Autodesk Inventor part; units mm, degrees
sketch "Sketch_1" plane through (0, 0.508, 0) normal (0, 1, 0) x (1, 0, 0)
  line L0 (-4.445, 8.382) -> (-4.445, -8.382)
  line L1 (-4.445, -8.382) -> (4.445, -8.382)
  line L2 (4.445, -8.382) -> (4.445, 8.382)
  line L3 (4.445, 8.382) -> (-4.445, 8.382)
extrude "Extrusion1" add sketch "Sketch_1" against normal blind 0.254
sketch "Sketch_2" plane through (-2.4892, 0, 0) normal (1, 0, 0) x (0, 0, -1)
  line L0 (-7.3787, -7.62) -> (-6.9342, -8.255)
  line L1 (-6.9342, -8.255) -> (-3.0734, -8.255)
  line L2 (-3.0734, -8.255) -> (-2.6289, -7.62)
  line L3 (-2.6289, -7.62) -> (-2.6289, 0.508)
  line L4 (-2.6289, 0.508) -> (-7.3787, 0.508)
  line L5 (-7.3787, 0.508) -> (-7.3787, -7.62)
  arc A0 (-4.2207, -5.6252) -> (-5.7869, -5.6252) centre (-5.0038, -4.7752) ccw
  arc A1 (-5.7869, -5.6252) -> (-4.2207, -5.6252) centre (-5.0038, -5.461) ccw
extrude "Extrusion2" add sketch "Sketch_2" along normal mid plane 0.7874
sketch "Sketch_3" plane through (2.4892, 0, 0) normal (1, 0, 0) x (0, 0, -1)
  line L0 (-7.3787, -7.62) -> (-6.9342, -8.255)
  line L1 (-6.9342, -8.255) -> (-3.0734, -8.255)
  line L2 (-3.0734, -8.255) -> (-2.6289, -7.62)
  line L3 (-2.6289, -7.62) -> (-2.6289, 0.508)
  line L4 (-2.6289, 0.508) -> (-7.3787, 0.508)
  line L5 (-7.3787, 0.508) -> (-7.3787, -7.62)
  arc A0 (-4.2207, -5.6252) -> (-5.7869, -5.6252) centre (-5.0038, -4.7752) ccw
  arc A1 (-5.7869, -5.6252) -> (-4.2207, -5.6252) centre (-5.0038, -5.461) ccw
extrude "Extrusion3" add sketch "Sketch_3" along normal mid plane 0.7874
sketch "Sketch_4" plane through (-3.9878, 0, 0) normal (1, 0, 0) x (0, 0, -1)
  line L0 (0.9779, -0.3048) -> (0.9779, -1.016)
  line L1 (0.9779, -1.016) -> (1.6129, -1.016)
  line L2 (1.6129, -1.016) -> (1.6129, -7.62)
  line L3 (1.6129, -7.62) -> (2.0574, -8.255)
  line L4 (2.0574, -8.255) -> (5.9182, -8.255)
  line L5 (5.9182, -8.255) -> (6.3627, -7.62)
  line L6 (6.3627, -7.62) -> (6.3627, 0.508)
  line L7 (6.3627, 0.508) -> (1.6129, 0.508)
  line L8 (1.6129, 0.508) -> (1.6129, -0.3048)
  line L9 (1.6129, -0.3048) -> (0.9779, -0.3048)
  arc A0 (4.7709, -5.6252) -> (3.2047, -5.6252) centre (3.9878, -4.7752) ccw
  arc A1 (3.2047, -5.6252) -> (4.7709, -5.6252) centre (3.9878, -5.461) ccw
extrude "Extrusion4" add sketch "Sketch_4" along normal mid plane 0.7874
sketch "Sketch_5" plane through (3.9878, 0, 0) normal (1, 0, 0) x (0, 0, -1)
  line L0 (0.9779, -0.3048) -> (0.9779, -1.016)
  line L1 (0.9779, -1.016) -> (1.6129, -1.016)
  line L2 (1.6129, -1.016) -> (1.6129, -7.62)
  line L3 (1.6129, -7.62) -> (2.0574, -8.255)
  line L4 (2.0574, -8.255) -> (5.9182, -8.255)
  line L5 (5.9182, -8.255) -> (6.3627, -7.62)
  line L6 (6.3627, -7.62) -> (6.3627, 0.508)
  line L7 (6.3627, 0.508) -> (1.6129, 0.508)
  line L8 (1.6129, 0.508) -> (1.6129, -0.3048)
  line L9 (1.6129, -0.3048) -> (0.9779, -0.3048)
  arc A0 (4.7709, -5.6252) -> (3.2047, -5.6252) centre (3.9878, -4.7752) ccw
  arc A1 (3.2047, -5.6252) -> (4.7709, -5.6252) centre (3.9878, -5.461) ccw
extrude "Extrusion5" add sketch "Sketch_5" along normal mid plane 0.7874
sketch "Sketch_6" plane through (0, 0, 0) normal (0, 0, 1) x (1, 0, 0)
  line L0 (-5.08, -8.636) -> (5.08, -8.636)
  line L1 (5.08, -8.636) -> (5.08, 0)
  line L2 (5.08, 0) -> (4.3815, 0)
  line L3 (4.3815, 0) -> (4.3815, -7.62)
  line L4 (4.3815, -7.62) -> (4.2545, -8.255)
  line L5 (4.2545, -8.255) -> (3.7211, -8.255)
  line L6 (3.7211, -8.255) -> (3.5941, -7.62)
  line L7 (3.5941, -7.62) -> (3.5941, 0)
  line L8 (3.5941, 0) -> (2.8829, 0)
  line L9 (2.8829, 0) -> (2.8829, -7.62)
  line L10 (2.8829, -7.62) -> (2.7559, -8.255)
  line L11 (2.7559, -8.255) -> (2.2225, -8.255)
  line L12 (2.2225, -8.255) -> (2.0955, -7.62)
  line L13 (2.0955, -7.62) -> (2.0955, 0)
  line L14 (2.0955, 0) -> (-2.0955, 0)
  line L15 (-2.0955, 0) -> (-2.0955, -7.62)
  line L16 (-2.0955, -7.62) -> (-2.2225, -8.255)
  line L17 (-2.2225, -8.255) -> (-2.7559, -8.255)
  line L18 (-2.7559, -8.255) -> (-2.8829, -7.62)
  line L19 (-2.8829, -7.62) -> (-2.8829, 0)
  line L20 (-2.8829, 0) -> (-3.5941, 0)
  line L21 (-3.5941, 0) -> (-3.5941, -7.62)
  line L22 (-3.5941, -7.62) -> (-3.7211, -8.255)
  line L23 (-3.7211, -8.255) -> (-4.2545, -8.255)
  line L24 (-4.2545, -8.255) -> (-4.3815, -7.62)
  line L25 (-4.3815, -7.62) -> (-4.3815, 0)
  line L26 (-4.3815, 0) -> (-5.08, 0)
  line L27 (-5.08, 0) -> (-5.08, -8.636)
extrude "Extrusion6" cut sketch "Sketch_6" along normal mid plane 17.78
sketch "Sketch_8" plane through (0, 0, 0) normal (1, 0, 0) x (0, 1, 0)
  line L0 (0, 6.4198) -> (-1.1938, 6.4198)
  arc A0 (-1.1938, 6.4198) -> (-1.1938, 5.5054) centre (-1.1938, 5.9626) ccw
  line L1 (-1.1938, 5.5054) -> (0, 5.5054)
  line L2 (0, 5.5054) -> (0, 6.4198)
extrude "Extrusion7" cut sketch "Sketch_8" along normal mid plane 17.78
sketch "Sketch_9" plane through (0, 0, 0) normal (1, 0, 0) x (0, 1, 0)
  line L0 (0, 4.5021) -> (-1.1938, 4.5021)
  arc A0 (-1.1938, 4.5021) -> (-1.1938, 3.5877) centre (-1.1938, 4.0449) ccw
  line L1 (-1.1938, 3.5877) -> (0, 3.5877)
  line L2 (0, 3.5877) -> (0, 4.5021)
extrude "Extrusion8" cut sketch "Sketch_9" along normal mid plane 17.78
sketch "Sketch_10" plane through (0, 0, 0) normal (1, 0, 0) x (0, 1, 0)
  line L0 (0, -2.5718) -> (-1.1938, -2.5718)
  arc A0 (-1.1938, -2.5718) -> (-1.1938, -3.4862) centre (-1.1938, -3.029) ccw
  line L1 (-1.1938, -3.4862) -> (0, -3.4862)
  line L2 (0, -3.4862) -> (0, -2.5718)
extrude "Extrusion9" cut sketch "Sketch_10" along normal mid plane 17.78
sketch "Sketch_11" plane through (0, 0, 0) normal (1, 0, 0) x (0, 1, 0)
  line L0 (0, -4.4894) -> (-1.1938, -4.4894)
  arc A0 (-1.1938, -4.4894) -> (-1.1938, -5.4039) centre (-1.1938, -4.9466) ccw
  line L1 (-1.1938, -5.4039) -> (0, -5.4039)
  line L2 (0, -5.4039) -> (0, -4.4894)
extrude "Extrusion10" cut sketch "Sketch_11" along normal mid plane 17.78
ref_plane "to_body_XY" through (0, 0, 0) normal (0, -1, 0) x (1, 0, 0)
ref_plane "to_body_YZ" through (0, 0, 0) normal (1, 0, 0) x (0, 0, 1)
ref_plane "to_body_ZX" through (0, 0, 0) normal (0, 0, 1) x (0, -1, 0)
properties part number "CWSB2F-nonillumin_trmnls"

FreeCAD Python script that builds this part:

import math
import FreeCAD as App
import Part
import Sketcher
from FreeCAD import Vector
Q = App.Units.Quantity


def add_polygon(sketch, points):
    """Adds a closed chain of lines whose ends are joined by coincident constraints."""
    first, n = sketch.GeometryCount, len(points)
    for a, b in zip(points, points[1:] + points[:1]):
        sketch.addGeometry(Part.LineSegment(App.Vector(*a, 0), App.Vector(*b, 0)), False)
    for i in range(n):
        sketch.addConstraint(Sketcher.Constraint("Coincident", first + i, 2, first + (i + 1) % n, 1))

doc = App.newDocument("Part")
body = doc.addObject("PartDesign::Body", "Body")

# Sketch on XZ plane
sketch1 = body.newObject("Sketcher::SketchObject", "Sketch")
sketch1.AttachmentSupport = (doc.getObject("XZ_Plane"), [""])
sketch1.MapMode = "FlatFace"
sketch1.AttachmentOffset = App.Placement(Vector(0, 0, -0.02 * 25.4), App.Rotation())
add_polygon(sketch1, [(4, -8), (-4, -8), (-4, 8), (4, 8)])  # lines 0-3
sketch1.addConstraint([
    Sketcher.Constraint("Horizontal", 0),
    Sketcher.Constraint("Vertical", 1),
    Sketcher.Constraint("Horizontal", 2),
    Sketcher.Constraint("Vertical", 3),
    Sketcher.Constraint("Symmetric", 0, 2, 2, 2, -1, 1),
    Sketcher.Constraint("DistanceX", 0, 2, 0, 1, Q("0.35 in")),
    Sketcher.Constraint("DistanceY", 1, 1, 1, 2, Q("0.66 in")),
])
pad1 = body.newObject("PartDesign::Pad", "Pad")
pad1.Profile = sketch1
pad1.Length = Q("0.01 in")

# Sketch on YZ plane
sketch2 = body.newObject("Sketcher::SketchObject", "Sketch001")
sketch2.AttachmentSupport = (doc.getObject("YZ_Plane"), [""])
sketch2.MapMode = "FlatFace"
sketch2.AttachmentOffset = App.Placement(Vector(0, 0, -0.098 * 25.4), App.Rotation())
add_polygon(sketch2, [(0.5, 7.4), (-7.6, 7.4), (-8.3, 6.9), (-8.3, 3.1), (-7.6, 2.6), (0.5, 2.6)])  # lines 0-5
sketch2.addGeometry(Part.ArcOfCircle(Part.Circle(Vector(-4.8, 5, 0), Vector(0, 0, 1), 1.2), math.radians(-137), math.radians(137)), False)  # 6
sketch2.addGeometry(Part.ArcOfCircle(Part.Circle(Vector(-5.5, 5, 0), Vector(0, 0, 1), 0.8), math.radians(102), math.radians(258)), False)  # 7
sketch2.addConstraint([
    Sketcher.Constraint("Coincident", 6, 1, 7, 2),
    Sketcher.Constraint("Coincident", 7, 1, 6, 2),
    Sketcher.Constraint("Horizontal", 0),
    Sketcher.Constraint("Vertical", 2),
    Sketcher.Constraint("Horizontal", 4),
    Sketcher.Constraint("Vertical", 5),
    Sketcher.Constraint("Horizontal", 6, 3, 7, 3),
    Sketcher.Constraint("Vertical", 0, 2, 3, 2),
    Sketcher.Constraint("Equal", 1, 3),
    Sketcher.Constraint("DistanceX", 0, 2, 0, 1, Q("0.32 in")),
    Sketcher.Constraint("DistanceX", 0, 2, -1, 1, Q("0.3 in")),
    Sketcher.Constraint("Radius", 6, Q("0.0455 in")),
    Sketcher.Constraint("Radius", 7, Q("0.0315 in")),
    Sketcher.Constraint("DistanceY", 2, 2, 2, 1, Q("0.152 in")),
    Sketcher.Constraint("DistanceY", 5, 1, 5, 2, Q("0.187 in")),
    Sketcher.Constraint("DistanceX", 1, 2, 7, 3, Q("0.11 in")),
    Sketcher.Constraint("DistanceX", 6, 3, -1, 1, Q("0.188 in")),
    Sketcher.Constraint("DistanceY", -1, 1, 6, 3, Q("0.197 in")),
    Sketcher.Constraint("DistanceX", 7, 3, -1, 1, Q("0.215 in")),
    Sketcher.Constraint("DistanceY", -1, 1, 1, 2, Q("0.273 in")),
])
pad2 = body.newObject("PartDesign::Pad", "Pad001")
pad2.Profile = sketch2
pad2.Length = Q("0.031 in")
pad2.Midplane = True

# Sketch on YZ plane
sketch3 = body.newObject("Sketcher::SketchObject", "Sketch002")
sketch3.AttachmentSupport = (doc.getObject("YZ_Plane"), [""])
sketch3.MapMode = "FlatFace"
sketch3.AttachmentOffset = App.Placement(Vector(0, 0, 0.098 * 25.4), App.Rotation())
add_polygon(sketch3, [(0.5, 7.4), (-7.6, 7.4), (-8.3, 6.9), (-8.3, 3.1), (-7.6, 2.6), (0.5, 2.6)])  # lines 0-5
sketch3.addGeometry(Part.ArcOfCircle(Part.Circle(Vector(-4.8, 5, 0), Vector(0, 0, 1), 1.2), math.radians(-137), math.radians(137)), False)  # 6
sketch3.addGeometry(Part.ArcOfCircle(Part.Circle(Vector(-5.5, 5, 0), Vector(0, 0, 1), 0.8), math.radians(102), math.radians(258)), False)  # 7
sketch3.addConstraint([
    Sketcher.Constraint("Coincident", 6, 1, 7, 2),
    Sketcher.Constraint("Coincident", 7, 1, 6, 2),
    Sketcher.Constraint("Horizontal", 0),
    Sketcher.Constraint("Vertical", 2),
    Sketcher.Constraint("Horizontal", 4),
    Sketcher.Constraint("Vertical", 5),
    Sketcher.Constraint("Horizontal", 6, 3, 7, 3),
    Sketcher.Constraint("Vertical", 0, 2, 3, 2),
    Sketcher.Constraint("Equal", 1, 3),
    Sketcher.Constraint("DistanceX", 0, 2, 0, 1, Q("0.32 in")),
    Sketcher.Constraint("DistanceX", 0, 2, -1, 1, Q("0.3 in")),
    Sketcher.Constraint("Radius", 6, Q("0.0455 in")),
    Sketcher.Constraint("Radius", 7, Q("0.0315 in")),
    Sketcher.Constraint("DistanceY", 2, 2, 2, 1, Q("0.152 in")),
    Sketcher.Constraint("DistanceY", 5, 1, 5, 2, Q("0.187 in")),
    Sketcher.Constraint("DistanceX", 1, 2, 7, 3, Q("0.11 in")),
    Sketcher.Constraint("DistanceX", 6, 3, -1, 1, Q("0.188 in")),
    Sketcher.Constraint("DistanceY", -1, 1, 6, 3, Q("0.197 in")),
    Sketcher.Constraint("DistanceX", 7, 3, -1, 1, Q("0.215 in")),
    Sketcher.Constraint("DistanceY", -1, 1, 1, 2, Q("0.273 in")),
])
pad3 = body.newObject("PartDesign::Pad", "Pad002")
pad3.Profile = sketch3
pad3.Length = Q("0.031 in")
pad3.Midplane = True

# Sketch on YZ plane
sketch4 = body.newObject("Sketcher::SketchObject", "Sketch003")
sketch4.AttachmentSupport = (doc.getObject("YZ_Plane"), [""])
sketch4.MapMode = "FlatFace"
sketch4.AttachmentOffset = App.Placement(Vector(0, 0, -0.157 * 25.4), App.Rotation())
add_polygon(sketch4, [(-0.3, -1.6), (-0.3, -1), (-1, -1), (-1, -1.6), (-7.6, -1.6), (-8.3, -2.1), (-8.3, -5.9), (-7.6, -6.4), (0.5, -6.4), (0.5, -1.6)])  # lines 0-9
sketch4.addGeometry(Part.ArcOfCircle(Part.Circle(Vector(-4.8, -4, 0), Vector(0, 0, 1), 1.2), math.radians(-137), math.radians(137)), False)  # 10
sketch4.addGeometry(Part.ArcOfCircle(Part.Circle(Vector(-5.5, -4, 0), Vector(0, 0, 1), 0.8), math.radians(102), math.radians(258)), False)  # 11
sketch4.addConstraint([
    Sketcher.Constraint("Coincident", 10, 1, 11, 2),
    Sketcher.Constraint("Coincident", 11, 1, 10, 2),
    Sketcher.Constraint("Vertical", 0),
    Sketcher.Constraint("Horizontal", 1),
    Sketcher.Constraint("Vertical", 2),
    Sketcher.Constraint("Horizontal", 3),
    Sketcher.Constraint("Vertical", 5),
    Sketcher.Constraint("Horizontal", 7),
    Sketcher.Constraint("Vertical", 8),
    Sketcher.Constraint("Horizontal", 9),
    Sketcher.Constraint("Horizontal", 10, 3, 11, 3),
    Sketcher.Constraint("Horizontal", 3, 2, 8, 2),
    Sketcher.Constraint("Vertical", 3, 2, 6, 2),
    Sketcher.Constraint("Equal", 4, 6),
    Sketcher.Constraint("DistanceX", 3, 2, 3, 1, Q("0.26 in")),
    Sketcher.Constraint("DistanceX", 7, 1, 7, 2, Q("0.32 in")),
    Sketcher.Constraint("DistanceX", 3, 2, -1, 1, Q("0.3 in")),
    Sketcher.Constraint("Radius", 10, Q("0.0455 in")),
    Sketcher.Constraint("Radius", 11, Q("0.0315 in")),
    Sketcher.Constraint("DistanceX", 1, 2, 1, 1, Q("0.028 in")),
    Sketcher.Constraint("DistanceY", 0, 1, 0, 2, Q("0.025 in")),
    Sketcher.Constraint("DistanceY", 5, 2, 5, 1, Q("0.152 in")),
    Sketcher.Constraint("DistanceY", 8, 1, 8, 2, Q("0.187 in")),
    Sketcher.Constraint("DistanceX", 4, 2, 11, 3, Q("0.11 in")),
    Sketcher.Constraint("DistanceX", 10, 3, -1, 1, Q("0.188 in")),
    Sketcher.Constraint("DistanceY", 10, 3, -1, 1, Q("0.157 in")),
    Sketcher.Constraint("DistanceX", 11, 3, -1, 1, Q("0.215 in")),
    Sketcher.Constraint("DistanceY", 4, 2, -1, 1, Q("0.081 in")),
])
pad4 = body.newObject("PartDesign::Pad", "Pad003")
pad4.Profile = sketch4
pad4.Length = Q("0.031 in")
pad4.Midplane = True

# Sketch on YZ plane
sketch5 = body.newObject("Sketcher::SketchObject", "Sketch004")
sketch5.AttachmentSupport = (doc.getObject("YZ_Plane"), [""])
sketch5.MapMode = "FlatFace"
sketch5.AttachmentOffset = App.Placement(Vector(0, 0, 0.157 * 25.4), App.Rotation())
add_polygon(sketch5, [(-0.3, -1.6), (-0.3, -1), (-1, -1), (-1, -1.6), (-7.6, -1.6), (-8.3, -2.1), (-8.3, -5.9), (-7.6, -6.4), (0.5, -6.4), (0.5, -1.6)])  # lines 0-9
sketch5.addGeometry(Part.ArcOfCircle(Part.Circle(Vector(-4.8, -4, 0), Vector(0, 0, 1), 1.2), math.radians(-137), math.radians(137)), False)  # 10
sketch5.addGeometry(Part.ArcOfCircle(Part.Circle(Vector(-5.5, -4, 0), Vector(0, 0, 1), 0.8), math.radians(102), math.radians(258)), False)  # 11
sketch5.addConstraint([
    Sketcher.Constraint("Coincident", 10, 1, 11, 2),
    Sketcher.Constraint("Coincident", 11, 1, 10, 2),
    Sketcher.Constraint("Vertical", 0),
    Sketcher.Constraint("Horizontal", 1),
    Sketcher.Constraint("Vertical", 2),
    Sketcher.Constraint("Horizontal", 3),
    Sketcher.Constraint("Vertical", 5),
    Sketcher.Constraint("Horizontal", 7),
    Sketcher.Constraint("Vertical", 8),
    Sketcher.Constraint("Horizontal", 9),
    Sketcher.Constraint("Horizontal", 10, 3, 11, 3),
    Sketcher.Constraint("Horizontal", 3, 2, 8, 2),
    Sketcher.Constraint("Vertical", 3, 2, 6, 2),
    Sketcher.Constraint("Equal", 4, 6),
    Sketcher.Constraint("DistanceX", 3, 2, 3, 1, Q("0.26 in")),
    Sketcher.Constraint("DistanceX", 7, 1, 7, 2, Q("0.32 in")),
    Sketcher.Constraint("DistanceX", 3, 2, -1, 1, Q("0.3 in")),
    Sketcher.Constraint("Radius", 10, Q("0.0455 in")),
    Sketcher.Constraint("Radius", 11, Q("0.0315 in")),
    Sketcher.Constraint("DistanceX", 1, 2, 1, 1, Q("0.028 in")),
    Sketcher.Constraint("DistanceY", 0, 1, 0, 2, Q("0.025 in")),
    Sketcher.Constraint("DistanceY", 5, 2, 5, 1, Q("0.152 in")),
    Sketcher.Constraint("DistanceY", 8, 1, 8, 2, Q("0.187 in")),
    Sketcher.Constraint("DistanceX", 4, 2, 11, 3, Q("0.11 in")),
    Sketcher.Constraint("DistanceX", 10, 3, -1, 1, Q("0.188 in")),
    Sketcher.Constraint("DistanceY", 10, 3, -1, 1, Q("0.157 in")),
    Sketcher.Constraint("DistanceX", 11, 3, -1, 1, Q("0.215 in")),
    Sketcher.Constraint("DistanceY", 4, 2, -1, 1, Q("0.081 in")),
])
pad5 = body.newObject("PartDesign::Pad", "Pad004")
pad5.Profile = sketch5
pad5.Length = Q("0.031 in")
pad5.Midplane = True

# Sketch on XY plane
sketch6 = body.newObject("Sketcher::SketchObject", "Sketch005")
sketch6.AttachmentSupport = (doc.getObject("XY_Plane"), [""])
sketch6.MapMode = "FlatFace"
add_polygon(sketch6, [(-5.1, 0), (-5.1, -8.6), (5.1, -8.6), (5.1, 0), (4.4, 0), (4.4, -7.6), (4.3, -8.3), (3.7, -8.3), (3.6, -7.6), (3.6, 0), (2.9, 0), (2.9, -7.6), (2.8, -8.3), (2.2, -8.3), (2.1, -7.6), (2.1, 0), (-2.1, 0), (-2.1, -7.6), (-2.2, -8.3), (-2.8, -8.3), (-2.9, -7.6), (-2.9, 0), (-3.6, 0), (-3.6, -7.6), (-3.7, -8.3), (-4.3, -8.3), (-4.4, -7.6), (-4.4, 0)])  # lines 0-27
sketch6.addConstraint([
    Sketcher.Constraint("Vertical", 0),
    Sketcher.Constraint("Horizontal", 1),
    Sketcher.Constraint("Vertical", 2),
    Sketcher.Constraint("Horizontal", 3),
    Sketcher.Constraint("Vertical", 4),
    Sketcher.Constraint("Horizontal", 6),
    Sketcher.Constraint("Vertical", 8),
    Sketcher.Constraint("Horizontal", 9),
    Sketcher.Constraint("Vertical", 10),
    Sketcher.Constraint("Horizontal", 12),
    Sketcher.Constraint("Vertical", 14),
    Sketcher.Constraint("Horizontal", 15),
    Sketcher.Constraint("Vertical", 16),
    Sketcher.Constraint("Horizontal", 18),
    Sketcher.Constraint("Vertical", 20),
    Sketcher.Constraint("Horizontal", 21),
    Sketcher.Constraint("Vertical", 22),
    Sketcher.Constraint("Horizontal", 24),
    Sketcher.Constraint("Vertical", 26),
    Sketcher.Constraint("Horizontal", 27),
    Sketcher.Constraint("Symmetric", 14, 2, 15, 2, -1, 1),
    Sketcher.Constraint("Symmetric", 9, 2, 20, 2, -1, 1),
    Sketcher.Constraint("Symmetric", 3, 2, 26, 2, -1, 1),
    Sketcher.Constraint("Symmetric", 12, 2, 17, 2, -2),
    Sketcher.Constraint("Symmetric", 8, 2, 21, 2, -2),
    Sketcher.Constraint("Symmetric", 6, 2, 23, 2, -2),
    Sketcher.Constraint("Symmetric", 2, 2, 27, 2, -2),
    Sketcher.Constraint("Parallel", 5, 11),
    Sketcher.Constraint("Parallel", 7, 13),
    Sketcher.Constraint("Parallel", 11, 17),
    Sketcher.Constraint("Parallel", 13, 19),
    Sketcher.Constraint("Parallel", 17, 23),
    Sketcher.Constraint("Parallel", 19, 25),
    Sketcher.Constraint("Horizontal", 4, 2, 7, 2),
    Sketcher.Constraint("Horizontal", 7, 2, 10, 2),
    Sketcher.Constraint("Horizontal", 6, 2, 11, 2),
    Sketcher.Constraint("Horizontal", 10, 2, 13, 2),
    Sketcher.Constraint("Horizontal", 13, 2, 16, 2),
    Sketcher.Constraint("Horizontal", 16, 2, 19, 2),
    Sketcher.Constraint("Horizontal", 22, 2, 25, 2),
    Sketcher.Constraint("Equal", 6, 12),
    Sketcher.Constraint("DistanceX", 1, 1, 1, 2, Q("0.4 in")),
    Sketcher.Constraint("DistanceY", 4, 2, 4, 1, Q("0.3 in")),
    Sketcher.Constraint("DistanceY", 0, 2, 0, 1, Q("0.34 in")),
    Sketcher.Constraint("DistanceX", 6, 2, 6, 1, Q("0.021 in")),
    Sketcher.Constraint("DistanceX", 9, 2, 9, 1, Q("0.028 in")),
    Sketcher.Constraint("DistanceX", 15, 2, 15, 1, Q("0.165 in")),
    Sketcher.Constraint("Angle", 5, Q("-101.31 deg")),
    Sketcher.Constraint("DistanceX", 12, 2, 5, 2, Q("0.08 in")),
])
pocket1 = body.newObject("PartDesign::Pocket", "Pocket")
pocket1.Profile = sketch6
pocket1.Length = Q("0.7 in")
pocket1.Midplane = True

# Sketch on YZ plane
sketch7 = body.newObject("Sketcher::SketchObject", "Sketch006")
sketch7.AttachmentSupport = (doc.getObject("YZ_Plane"), [""])
sketch7.MapMode = "FlatFace"
sketch7.addGeometry([
    Part.LineSegment(Vector(0, 5.51, 0), Vector(0, 6.42, 0)),
    Part.LineSegment(Vector(0, 6.42, 0), Vector(-1.19, 6.42, 0)),
    Part.ArcOfCircle(Part.Circle(Vector(-1.19, 5.96, 0), Vector(0, 0, 1), 0.46), math.radians(90), math.radians(270)),
    Part.LineSegment(Vector(-1.19, 5.51, 0), Vector(0, 5.51, 0)),
], False)
sketch7.addConstraint([
    Sketcher.Constraint("Coincident", 0, 2, 1, 1),
    Sketcher.Constraint("Tangent", 1, 2, 2, 1),
    Sketcher.Constraint("Tangent", 2, 2, 3, 1),
    Sketcher.Constraint("Coincident", 3, 2, 0, 1),
    Sketcher.Constraint("Vertical", 0),
    Sketcher.Constraint("Horizontal", 1),
    Sketcher.Constraint("Horizontal", 3),
    Sketcher.Constraint("PointOnObject", 0, 2, -2),
    Sketcher.Constraint("Radius", 2, Q("0.018 in")),
    Sketcher.Constraint("DistanceX", 1, 2, 1, 1, Q("0.047 in")),
    Sketcher.Constraint("DistanceY", -1, 1, 2, 3, 5.9626),
])
pocket2 = body.newObject("PartDesign::Pocket", "Pocket001")
pocket2.Profile = sketch7
pocket2.Length = Q("0.7 in")
pocket2.Midplane = True

# Sketch on YZ plane
sketch8 = body.newObject("Sketcher::SketchObject", "Sketch007")
sketch8.AttachmentSupport = (doc.getObject("YZ_Plane"), [""])
sketch8.MapMode = "FlatFace"
sketch8.addGeometry([
    Part.LineSegment(Vector(0, 3.59, 0), Vector(0, 4.5, 0)),
    Part.LineSegment(Vector(0, 4.5, 0), Vector(-1.19, 4.5, 0)),
    Part.ArcOfCircle(Part.Circle(Vector(-1.19, 4.04, 0), Vector(0, 0, 1), 0.46), math.radians(90), math.radians(270)),
    Part.LineSegment(Vector(-1.19, 3.59, 0), Vector(0, 3.59, 0)),
], False)
sketch8.addConstraint([
    Sketcher.Constraint("Coincident", 0, 2, 1, 1),
    Sketcher.Constraint("Tangent", 1, 2, 2, 1),
    Sketcher.Constraint("Tangent", 2, 2, 3, 1),
    Sketcher.Constraint("Coincident", 3, 2, 0, 1),
    Sketcher.Constraint("Vertical", 0),
    Sketcher.Constraint("Horizontal", 1),
    Sketcher.Constraint("Horizontal", 3),
    Sketcher.Constraint("PointOnObject", 0, 2, -2),
    Sketcher.Constraint("Radius", 2, Q("0.018 in")),
    Sketcher.Constraint("DistanceX", 1, 2, 1, 1, Q("0.047 in")),
    Sketcher.Constraint("DistanceY", -1, 1, 2, 3, 4.045),
])
pocket3 = body.newObject("PartDesign::Pocket", "Pocket002")
pocket3.Profile = sketch8
pocket3.Length = Q("0.7 in")
pocket3.Midplane = True

# Sketch on YZ plane
sketch9 = body.newObject("Sketcher::SketchObject", "Sketch008")
sketch9.AttachmentSupport = (doc.getObject("YZ_Plane"), [""])
sketch9.MapMode = "FlatFace"
sketch9.addGeometry([
    Part.LineSegment(Vector(0, -3.49, 0), Vector(0, -2.57, 0)),
    Part.LineSegment(Vector(0, -2.57, 0), Vector(-1.19, -2.57, 0)),
    Part.ArcOfCircle(Part.Circle(Vector(-1.19, -3.03, 0), Vector(0, 0, 1), 0.46), math.radians(90), math.radians(270)),
    Part.LineSegment(Vector(-1.19, -3.49, 0), Vector(0, -3.49, 0)),
], False)
sketch9.addConstraint([
    Sketcher.Constraint("Coincident", 0, 2, 1, 1),
    Sketcher.Constraint("Tangent", 1, 2, 2, 1),
    Sketcher.Constraint("Tangent", 2, 2, 3, 1),
    Sketcher.Constraint("Coincident", 3, 2, 0, 1),
    Sketcher.Constraint("Vertical", 0),
    Sketcher.Constraint("Horizontal", 1),
    Sketcher.Constraint("Horizontal", 3),
    Sketcher.Constraint("PointOnObject", 0, 2, -2),
    Sketcher.Constraint("Radius", 2, Q("0.018 in")),
    Sketcher.Constraint("DistanceX", 1, 2, 1, 1, Q("0.047 in")),
    Sketcher.Constraint("DistanceY", 2, 3, -1, 1, 3.029),
])
pocket4 = body.newObject("PartDesign::Pocket", "Pocket003")
pocket4.Profile = sketch9
pocket4.Length = Q("0.7 in")
pocket4.Midplane = True

# Sketch on YZ plane
sketch10 = body.newObject("Sketcher::SketchObject", "Sketch009")
sketch10.AttachmentSupport = (doc.getObject("YZ_Plane"), [""])
sketch10.MapMode = "FlatFace"
sketch10.addGeometry([
    Part.LineSegment(Vector(0, -5.4, 0), Vector(0, -4.49, 0)),
    Part.LineSegment(Vector(0, -4.49, 0), Vector(-1.19, -4.49, 0)),
    Part.ArcOfCircle(Part.Circle(Vector(-1.19, -4.95, 0), Vector(0, 0, 1), 0.46), math.radians(90), math.radians(270)),
    Part.LineSegment(Vector(-1.19, -5.4, 0), Vector(0, -5.4, 0)),
], False)
sketch10.addConstraint([
    Sketcher.Constraint("Coincident", 0, 2, 1, 1),
    Sketcher.Constraint("Tangent", 1, 2, 2, 1),
    Sketcher.Constraint("Tangent", 2, 2, 3, 1),
    Sketcher.Constraint("Coincident", 3, 2, 0, 1),
    Sketcher.Constraint("Vertical", 0),
    Sketcher.Constraint("Horizontal", 1),
    Sketcher.Constraint("Horizontal", 3),
    Sketcher.Constraint("PointOnObject", 0, 2, -2),
    Sketcher.Constraint("Radius", 2, Q("0.018 in")),
    Sketcher.Constraint("DistanceX", 1, 2, 1, 1, Q("0.047 in")),
    Sketcher.Constraint("DistanceY", 2, 3, -1, 1, 4.9466),
])
pocket5 = body.newObject("PartDesign::Pocket", "Pocket004")
pocket5.Profile = sketch10
pocket5.Length = Q("0.7 in")
pocket5.Midplane = True

doc.recompute()
